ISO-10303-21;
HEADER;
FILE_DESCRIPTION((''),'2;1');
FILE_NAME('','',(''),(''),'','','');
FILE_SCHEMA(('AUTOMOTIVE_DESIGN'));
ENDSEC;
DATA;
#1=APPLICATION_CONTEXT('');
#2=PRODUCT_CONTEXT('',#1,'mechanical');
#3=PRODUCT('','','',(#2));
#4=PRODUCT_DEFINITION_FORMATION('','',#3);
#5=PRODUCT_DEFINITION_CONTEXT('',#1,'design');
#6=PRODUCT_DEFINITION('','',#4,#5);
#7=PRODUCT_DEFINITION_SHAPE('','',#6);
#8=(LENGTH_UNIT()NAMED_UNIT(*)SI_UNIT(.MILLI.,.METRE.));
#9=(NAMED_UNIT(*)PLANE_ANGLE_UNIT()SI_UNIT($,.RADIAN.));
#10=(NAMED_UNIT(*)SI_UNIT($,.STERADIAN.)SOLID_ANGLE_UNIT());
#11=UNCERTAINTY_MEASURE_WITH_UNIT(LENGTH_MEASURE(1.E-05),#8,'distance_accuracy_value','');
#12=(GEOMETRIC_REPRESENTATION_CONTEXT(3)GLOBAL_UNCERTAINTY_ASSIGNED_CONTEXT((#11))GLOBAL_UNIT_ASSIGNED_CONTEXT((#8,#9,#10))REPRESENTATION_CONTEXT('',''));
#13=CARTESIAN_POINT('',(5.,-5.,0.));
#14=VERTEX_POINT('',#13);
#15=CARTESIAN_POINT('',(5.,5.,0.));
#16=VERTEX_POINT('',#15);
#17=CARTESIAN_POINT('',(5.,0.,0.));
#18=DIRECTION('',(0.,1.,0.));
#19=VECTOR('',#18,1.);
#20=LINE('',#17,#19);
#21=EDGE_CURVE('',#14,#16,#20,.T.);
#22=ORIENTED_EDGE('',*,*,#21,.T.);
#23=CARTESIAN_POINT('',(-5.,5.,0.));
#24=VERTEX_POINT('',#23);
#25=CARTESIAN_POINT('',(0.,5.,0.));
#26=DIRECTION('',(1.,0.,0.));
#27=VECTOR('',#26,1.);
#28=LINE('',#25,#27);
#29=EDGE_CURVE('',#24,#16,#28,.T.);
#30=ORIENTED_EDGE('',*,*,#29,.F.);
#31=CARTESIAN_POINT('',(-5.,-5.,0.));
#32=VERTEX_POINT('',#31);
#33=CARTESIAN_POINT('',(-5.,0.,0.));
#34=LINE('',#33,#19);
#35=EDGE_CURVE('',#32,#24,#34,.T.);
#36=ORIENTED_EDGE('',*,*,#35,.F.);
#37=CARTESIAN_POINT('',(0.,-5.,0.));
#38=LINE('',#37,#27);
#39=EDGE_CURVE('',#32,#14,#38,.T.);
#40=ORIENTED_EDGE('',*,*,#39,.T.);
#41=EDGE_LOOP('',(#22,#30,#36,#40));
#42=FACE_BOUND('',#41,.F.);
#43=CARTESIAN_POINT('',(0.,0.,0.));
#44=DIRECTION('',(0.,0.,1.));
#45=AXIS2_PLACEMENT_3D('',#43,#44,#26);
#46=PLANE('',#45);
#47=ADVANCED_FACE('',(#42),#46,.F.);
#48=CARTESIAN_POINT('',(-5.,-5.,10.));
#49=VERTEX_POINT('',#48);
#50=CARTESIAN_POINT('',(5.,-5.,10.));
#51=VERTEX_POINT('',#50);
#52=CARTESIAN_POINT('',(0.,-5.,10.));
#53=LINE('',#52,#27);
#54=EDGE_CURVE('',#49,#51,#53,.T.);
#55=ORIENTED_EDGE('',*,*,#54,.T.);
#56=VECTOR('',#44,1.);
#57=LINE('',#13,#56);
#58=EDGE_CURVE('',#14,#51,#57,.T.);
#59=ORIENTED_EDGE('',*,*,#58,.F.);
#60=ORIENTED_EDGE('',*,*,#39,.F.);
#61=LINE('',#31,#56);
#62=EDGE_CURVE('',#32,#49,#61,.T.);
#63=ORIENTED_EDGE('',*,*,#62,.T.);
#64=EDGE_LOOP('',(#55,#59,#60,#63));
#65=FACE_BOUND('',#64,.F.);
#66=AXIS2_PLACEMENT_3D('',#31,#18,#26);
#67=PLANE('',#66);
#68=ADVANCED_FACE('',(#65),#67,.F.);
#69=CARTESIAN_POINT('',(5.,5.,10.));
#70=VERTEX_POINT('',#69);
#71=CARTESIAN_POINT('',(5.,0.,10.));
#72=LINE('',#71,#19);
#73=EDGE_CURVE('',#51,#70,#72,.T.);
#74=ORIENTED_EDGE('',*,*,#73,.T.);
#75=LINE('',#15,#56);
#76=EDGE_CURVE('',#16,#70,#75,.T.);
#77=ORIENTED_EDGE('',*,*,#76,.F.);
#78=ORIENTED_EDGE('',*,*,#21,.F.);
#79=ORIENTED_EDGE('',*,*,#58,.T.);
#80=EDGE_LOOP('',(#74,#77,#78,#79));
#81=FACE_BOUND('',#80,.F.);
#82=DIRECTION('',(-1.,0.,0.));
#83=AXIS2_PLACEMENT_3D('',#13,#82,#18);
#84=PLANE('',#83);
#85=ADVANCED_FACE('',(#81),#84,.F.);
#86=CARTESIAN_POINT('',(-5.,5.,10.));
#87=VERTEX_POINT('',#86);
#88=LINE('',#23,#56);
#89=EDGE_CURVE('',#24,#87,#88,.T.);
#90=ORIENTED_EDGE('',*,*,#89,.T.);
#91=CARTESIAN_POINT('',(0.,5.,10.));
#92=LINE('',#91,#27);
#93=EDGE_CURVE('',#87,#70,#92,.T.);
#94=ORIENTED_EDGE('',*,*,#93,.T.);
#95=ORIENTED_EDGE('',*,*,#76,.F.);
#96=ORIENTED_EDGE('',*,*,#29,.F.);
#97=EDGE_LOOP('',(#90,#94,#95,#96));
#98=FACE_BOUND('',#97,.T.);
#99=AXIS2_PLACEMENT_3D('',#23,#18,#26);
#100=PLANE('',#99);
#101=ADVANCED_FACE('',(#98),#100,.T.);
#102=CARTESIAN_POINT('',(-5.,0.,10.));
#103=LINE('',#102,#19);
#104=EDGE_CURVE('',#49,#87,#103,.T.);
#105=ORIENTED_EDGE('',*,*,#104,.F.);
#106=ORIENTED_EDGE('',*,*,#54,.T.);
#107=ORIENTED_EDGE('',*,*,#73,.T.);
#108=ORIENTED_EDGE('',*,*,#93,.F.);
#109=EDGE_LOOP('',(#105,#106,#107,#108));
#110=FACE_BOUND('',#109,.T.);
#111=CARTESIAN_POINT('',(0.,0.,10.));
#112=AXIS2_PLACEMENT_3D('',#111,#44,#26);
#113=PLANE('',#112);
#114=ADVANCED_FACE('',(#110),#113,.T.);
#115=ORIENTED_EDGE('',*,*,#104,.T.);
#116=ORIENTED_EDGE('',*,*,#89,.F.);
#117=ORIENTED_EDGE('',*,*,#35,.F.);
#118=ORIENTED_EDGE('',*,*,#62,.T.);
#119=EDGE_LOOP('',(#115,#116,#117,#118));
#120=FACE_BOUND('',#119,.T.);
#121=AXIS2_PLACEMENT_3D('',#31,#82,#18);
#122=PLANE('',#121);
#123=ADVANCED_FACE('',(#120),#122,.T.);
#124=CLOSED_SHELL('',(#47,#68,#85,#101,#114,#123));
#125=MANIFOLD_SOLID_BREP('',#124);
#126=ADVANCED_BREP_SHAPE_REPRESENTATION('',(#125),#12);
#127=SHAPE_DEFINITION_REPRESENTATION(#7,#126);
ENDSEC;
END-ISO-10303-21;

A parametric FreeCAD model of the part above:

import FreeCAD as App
import Part
import Sketcher

doc = App.newDocument("Part")
params = doc.addObject("Spreadsheet::Sheet", "Params")
for row, (alias, value) in enumerate([
    ("sketch1_width", "10 mm"),
    ("pad1_length", "10 mm"),
], start=1):
    params.set(f"A{row}", alias)
    params.set(f"B{row}", "=" + value)
    params.setAlias(f"B{row}", alias)

body = doc.addObject("PartDesign::Body", "Body")

sketch1 = body.newObject("Sketcher::SketchObject", "Sketch")
sketch1.AttachmentSupport = (doc.getObject("XY_Plane"), [""])
sketch1.MapMode = "FlatFace"
sketch1.addGeometry([
    Part.LineSegment(App.Vector(-5, 5, 0), App.Vector(-5, -5, 0)),
    Part.LineSegment(App.Vector(-5, -5, 0), App.Vector(5, -5, 0)),
    Part.LineSegment(App.Vector(5, -5, 0), App.Vector(5, 5, 0)),
    Part.LineSegment(App.Vector(5, 5, 0), App.Vector(-5, 5, 0)),
], False)
sketch1.addConstraint([
    Sketcher.Constraint("Coincident", 0, 2, 1, 1),
    Sketcher.Constraint("Coincident", 1, 2, 2, 1),
    Sketcher.Constraint("Coincident", 2, 2, 3, 1),
    Sketcher.Constraint("Coincident", 3, 2, 0, 1),
    Sketcher.Constraint("Vertical", 0),
    Sketcher.Constraint("Horizontal", 1),
    Sketcher.Constraint("Vertical", 2),
    Sketcher.Constraint("Horizontal", 3),
    Sketcher.Constraint("Symmetric", 0, 2, 2, 2, -1, 1),
    Sketcher.Constraint("Equal", 3, 0),
    Sketcher.Constraint("DistanceX", 1, 1, 1, 2, 10.0),
])
sketch1.setExpression("Constraints[10]", "Params.sketch1_width")
pad1 = body.newObject("PartDesign::Pad", "Pad")
pad1.Profile = sketch1
pad1.setExpression("Length", "Params.pad1_length")

doc.recompute()
